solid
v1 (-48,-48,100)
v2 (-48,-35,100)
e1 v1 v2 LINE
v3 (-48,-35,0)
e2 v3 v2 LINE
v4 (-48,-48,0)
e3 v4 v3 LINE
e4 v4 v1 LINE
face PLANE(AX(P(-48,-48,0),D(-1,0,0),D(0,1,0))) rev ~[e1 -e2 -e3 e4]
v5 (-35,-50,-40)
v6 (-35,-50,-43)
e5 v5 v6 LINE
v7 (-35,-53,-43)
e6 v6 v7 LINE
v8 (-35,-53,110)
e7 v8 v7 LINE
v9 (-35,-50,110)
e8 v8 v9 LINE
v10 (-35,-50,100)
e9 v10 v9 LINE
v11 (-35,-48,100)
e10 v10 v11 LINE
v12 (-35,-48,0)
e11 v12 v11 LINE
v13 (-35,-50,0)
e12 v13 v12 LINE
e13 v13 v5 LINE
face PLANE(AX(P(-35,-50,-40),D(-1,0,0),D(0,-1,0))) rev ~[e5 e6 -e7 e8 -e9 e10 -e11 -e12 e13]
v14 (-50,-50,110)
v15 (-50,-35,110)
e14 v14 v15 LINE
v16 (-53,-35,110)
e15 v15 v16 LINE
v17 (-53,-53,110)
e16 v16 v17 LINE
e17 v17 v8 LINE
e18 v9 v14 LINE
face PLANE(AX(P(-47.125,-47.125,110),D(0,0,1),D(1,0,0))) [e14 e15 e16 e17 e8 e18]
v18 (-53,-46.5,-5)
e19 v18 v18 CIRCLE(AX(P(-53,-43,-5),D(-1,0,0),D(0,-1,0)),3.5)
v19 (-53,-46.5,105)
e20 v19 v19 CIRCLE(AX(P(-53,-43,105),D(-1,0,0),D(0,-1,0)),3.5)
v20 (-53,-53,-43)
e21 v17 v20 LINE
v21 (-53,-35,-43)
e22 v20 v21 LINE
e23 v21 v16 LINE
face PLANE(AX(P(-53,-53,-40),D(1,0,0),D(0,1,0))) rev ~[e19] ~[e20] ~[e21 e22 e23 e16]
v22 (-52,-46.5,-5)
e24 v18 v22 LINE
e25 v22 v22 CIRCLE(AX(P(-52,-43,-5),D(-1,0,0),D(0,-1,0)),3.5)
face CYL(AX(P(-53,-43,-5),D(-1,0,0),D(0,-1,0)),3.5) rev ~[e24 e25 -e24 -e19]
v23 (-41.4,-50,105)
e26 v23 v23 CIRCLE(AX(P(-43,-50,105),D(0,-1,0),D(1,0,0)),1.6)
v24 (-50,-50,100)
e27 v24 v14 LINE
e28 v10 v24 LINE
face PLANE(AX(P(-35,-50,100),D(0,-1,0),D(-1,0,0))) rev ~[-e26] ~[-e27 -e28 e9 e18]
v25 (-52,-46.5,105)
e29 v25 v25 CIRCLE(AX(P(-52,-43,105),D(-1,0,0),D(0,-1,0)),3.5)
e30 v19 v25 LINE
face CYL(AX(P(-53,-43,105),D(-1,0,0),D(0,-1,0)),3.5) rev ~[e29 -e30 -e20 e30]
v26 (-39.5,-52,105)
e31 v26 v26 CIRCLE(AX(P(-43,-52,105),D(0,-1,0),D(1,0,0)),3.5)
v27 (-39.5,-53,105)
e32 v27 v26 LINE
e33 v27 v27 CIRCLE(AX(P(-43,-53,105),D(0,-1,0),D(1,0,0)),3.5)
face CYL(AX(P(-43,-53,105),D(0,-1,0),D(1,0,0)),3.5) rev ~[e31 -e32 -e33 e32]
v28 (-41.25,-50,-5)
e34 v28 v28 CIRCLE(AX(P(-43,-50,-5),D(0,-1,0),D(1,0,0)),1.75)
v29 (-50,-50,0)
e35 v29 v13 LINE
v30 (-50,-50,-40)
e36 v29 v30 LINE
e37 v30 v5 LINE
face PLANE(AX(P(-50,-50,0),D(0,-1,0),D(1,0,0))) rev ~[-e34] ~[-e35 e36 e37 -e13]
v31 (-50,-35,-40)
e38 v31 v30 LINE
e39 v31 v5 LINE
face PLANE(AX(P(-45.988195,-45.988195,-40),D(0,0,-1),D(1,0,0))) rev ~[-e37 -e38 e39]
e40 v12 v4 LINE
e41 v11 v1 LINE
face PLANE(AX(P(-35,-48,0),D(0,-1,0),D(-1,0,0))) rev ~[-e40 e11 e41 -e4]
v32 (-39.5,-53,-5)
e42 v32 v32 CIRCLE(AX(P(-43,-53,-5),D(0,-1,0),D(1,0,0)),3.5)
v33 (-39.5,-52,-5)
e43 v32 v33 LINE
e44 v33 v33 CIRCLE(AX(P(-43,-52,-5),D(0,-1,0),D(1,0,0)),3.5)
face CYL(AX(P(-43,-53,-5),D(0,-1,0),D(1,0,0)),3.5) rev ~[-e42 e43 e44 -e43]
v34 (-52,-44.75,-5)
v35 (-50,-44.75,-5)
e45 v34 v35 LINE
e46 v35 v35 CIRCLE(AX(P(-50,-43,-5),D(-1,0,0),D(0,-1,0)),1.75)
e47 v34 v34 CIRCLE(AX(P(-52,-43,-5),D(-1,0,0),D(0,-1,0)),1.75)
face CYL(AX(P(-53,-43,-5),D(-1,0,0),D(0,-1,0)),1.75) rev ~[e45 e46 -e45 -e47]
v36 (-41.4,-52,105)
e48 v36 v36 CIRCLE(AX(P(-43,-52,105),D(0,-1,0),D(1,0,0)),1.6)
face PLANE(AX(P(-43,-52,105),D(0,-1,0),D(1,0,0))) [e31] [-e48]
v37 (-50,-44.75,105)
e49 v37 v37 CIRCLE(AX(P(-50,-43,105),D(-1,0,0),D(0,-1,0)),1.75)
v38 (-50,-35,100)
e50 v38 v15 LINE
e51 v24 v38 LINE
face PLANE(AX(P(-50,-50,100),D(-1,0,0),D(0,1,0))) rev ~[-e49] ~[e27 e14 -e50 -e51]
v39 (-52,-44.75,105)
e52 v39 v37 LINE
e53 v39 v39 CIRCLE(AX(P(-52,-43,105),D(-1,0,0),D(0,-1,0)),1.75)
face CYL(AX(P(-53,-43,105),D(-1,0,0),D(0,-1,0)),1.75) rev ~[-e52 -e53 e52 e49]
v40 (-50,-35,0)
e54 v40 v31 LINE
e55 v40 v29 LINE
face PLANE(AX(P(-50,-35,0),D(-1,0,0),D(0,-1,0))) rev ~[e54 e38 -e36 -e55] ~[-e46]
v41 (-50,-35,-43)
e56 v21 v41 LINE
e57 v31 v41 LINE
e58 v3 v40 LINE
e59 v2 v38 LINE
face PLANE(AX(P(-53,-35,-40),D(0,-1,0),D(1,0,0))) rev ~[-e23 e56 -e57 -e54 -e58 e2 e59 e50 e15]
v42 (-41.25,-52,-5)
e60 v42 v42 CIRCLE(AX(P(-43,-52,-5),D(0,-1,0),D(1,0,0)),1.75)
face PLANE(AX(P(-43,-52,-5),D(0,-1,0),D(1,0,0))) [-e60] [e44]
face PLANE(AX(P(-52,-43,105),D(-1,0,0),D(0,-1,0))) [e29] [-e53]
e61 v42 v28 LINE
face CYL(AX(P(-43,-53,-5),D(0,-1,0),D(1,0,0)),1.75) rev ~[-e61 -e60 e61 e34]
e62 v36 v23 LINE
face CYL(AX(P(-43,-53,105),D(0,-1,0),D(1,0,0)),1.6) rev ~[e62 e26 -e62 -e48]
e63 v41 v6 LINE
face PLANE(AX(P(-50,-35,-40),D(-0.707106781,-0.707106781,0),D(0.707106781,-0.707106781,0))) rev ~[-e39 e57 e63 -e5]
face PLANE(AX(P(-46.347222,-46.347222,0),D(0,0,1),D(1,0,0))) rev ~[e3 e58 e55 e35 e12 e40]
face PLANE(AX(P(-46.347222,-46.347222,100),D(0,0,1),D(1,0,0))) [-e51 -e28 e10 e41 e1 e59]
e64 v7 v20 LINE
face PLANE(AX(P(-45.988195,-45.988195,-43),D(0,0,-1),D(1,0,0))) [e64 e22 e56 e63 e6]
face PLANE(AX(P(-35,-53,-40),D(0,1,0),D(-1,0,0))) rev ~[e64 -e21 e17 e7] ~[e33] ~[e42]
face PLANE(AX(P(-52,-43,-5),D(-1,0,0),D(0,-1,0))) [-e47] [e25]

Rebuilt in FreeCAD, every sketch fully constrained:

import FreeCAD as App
import Part
import Sketcher

V = App.Vector
Q = App.Units.Quantity


def add_polygon(sketch, points):
    """Adds a closed chain of lines whose ends are joined by coincident constraints."""
    first, n = sketch.GeometryCount, len(points)
    for a, b in zip(points, points[1:] + points[:1]):
        sketch.addGeometry(Part.LineSegment(App.Vector(*a, 0), App.Vector(*b, 0)), False)
    for i in range(n):
        sketch.addConstraint(Sketcher.Constraint("Coincident", first + i, 2, first + (i + 1) % n, 1))

doc = App.newDocument("Part")
body = doc.addObject("PartDesign::Body", "Body")

# Sketch on XY plane
sketch1 = body.newObject("Sketcher::SketchObject", "Sketch")
sketch1.AttachmentSupport = (doc.getObject("XY_Plane"), [""])
sketch1.MapMode = "FlatFace"
add_polygon(sketch1, [(-53, -35), (-53, -53), (-35, -53), (-35, -48), (-48, -48), (-48, -35)])  # lines 0-5
sketch1.addConstraint([
    Sketcher.Constraint("Vertical", 0),
    Sketcher.Constraint("Horizontal", 1),
    Sketcher.Constraint("Vertical", 2),
    Sketcher.Constraint("Horizontal", 3),
    Sketcher.Constraint("Vertical", 4),
    Sketcher.Constraint("Horizontal", 5),
    Sketcher.Constraint("Equal", 1, 0),
    Sketcher.Constraint("Equal", 5, 2),
    Sketcher.Constraint("DistanceX", 1, 1, 1, 2, Q("18 mm")),
    Sketcher.Constraint("DistanceX", 3, 2, 3, 1, Q("13 mm")),
    Sketcher.Constraint("DistanceX", 0, 2, -1, 1, Q("53 mm")),
    Sketcher.Constraint("DistanceY", 0, 2, -1, 1, Q("53 mm")),
])
pad1 = body.newObject("PartDesign::Pad", "Pad")
pad1.Profile = sketch1
pad1.Length = 100

# Sketch on XY plane
sketch2 = body.newObject("Sketcher::SketchObject", "Sketch001")
sketch2.AttachmentSupport = (doc.getObject("XY_Plane"), [""])
sketch2.MapMode = "FlatFace"
sketch2.AttachmentOffset = App.Placement(V(0, 0, 100), App.Rotation())
add_polygon(sketch2, [(-53, -35), (-53, -53), (-35, -53), (-35, -50), (-50, -50), (-50, -35)])  # lines 0-5
sketch2.addConstraint([
    Sketcher.Constraint("Vertical", 0),
    Sketcher.Constraint("Horizontal", 1),
    Sketcher.Constraint("Vertical", 2),
    Sketcher.Constraint("Horizontal", 3),
    Sketcher.Constraint("Vertical", 4),
    Sketcher.Constraint("Horizontal", 5),
    Sketcher.Constraint("Equal", 1, 0),
    Sketcher.Constraint("Equal", 5, 2),
    Sketcher.Constraint("DistanceX", 1, 1, 1, 2, Q("18 mm")),
    Sketcher.Constraint("DistanceX", 3, 2, 3, 1, Q("15 mm")),
    Sketcher.Constraint("DistanceX", 0, 2, -1, 1, Q("53 mm")),
    Sketcher.Constraint("DistanceY", 0, 2, -1, 1, Q("53 mm")),
])
pad2 = body.newObject("PartDesign::Pad", "Pad001")
pad2.Profile = sketch2
pad2.Length = 10

# Sketch on XZ plane
sketch3 = body.newObject("Sketcher::SketchObject", "Sketch002")
sketch3.AttachmentSupport = (doc.getObject("XZ_Plane"), [""])
sketch3.MapMode = "FlatFace"
sketch3.AttachmentOffset = App.Placement(V(0, 0, 53), App.Rotation())
sketch3.addGeometry(Part.Circle(V(-43, 105, 0), V(0, 0, 1), 1.6), False)
sketch3.addConstraint([
    Sketcher.Constraint("Diameter", 0, Q("3.2 mm")),
    Sketcher.Constraint("DistanceX", 0, 3, -1, 1, Q("43 mm")),
    Sketcher.Constraint("DistanceY", -1, 1, 0, 3, Q("105 mm")),
])
pocket1 = body.newObject("PartDesign::Pocket", "Pocket")
pocket1.Profile = sketch3
pocket1.Length = 5

# Sketch on XZ plane
sketch4 = body.newObject("Sketcher::SketchObject", "Sketch003")
sketch4.AttachmentSupport = (doc.getObject("XZ_Plane"), [""])
sketch4.MapMode = "FlatFace"
sketch4.AttachmentOffset = App.Placement(V(0, 0, 53), App.Rotation())
sketch4.addGeometry(Part.Circle(V(-43, 105, 0), V(0, 0, 1), 3.5), False)
sketch4.addConstraint([
    Sketcher.Constraint("Diameter", 0, Q("7 mm")),
    Sketcher.Constraint("DistanceX", 0, 3, -1, 1, Q("43 mm")),
    Sketcher.Constraint("DistanceY", -1, 1, 0, 3, Q("105 mm")),
])
pocket2 = body.newObject("PartDesign::Pocket", "Pocket001")
pocket2.Profile = sketch4
pocket2.Length = 1

# Sketch on YZ plane
sketch5 = body.newObject("Sketcher::SketchObject", "Sketch004")
sketch5.AttachmentSupport = (doc.getObject("YZ_Plane"), [""])
sketch5.MapMode = "FlatFace"
sketch5.AttachmentOffset = App.Placement(V(0, 0, -53), App.Rotation())
sketch5.addGeometry(Part.Circle(V(-43, 105, 0), V(0, 0, 1), 1.8), False)
sketch5.addConstraint([
    Sketcher.Constraint("Diameter", 0, Q("3.5 mm")),
    Sketcher.Constraint("DistanceX", 0, 3, -1, 1, Q("43 mm")),
    Sketcher.Constraint("DistanceY", -1, 1, 0, 3, Q("105 mm")),
])
pocket3 = body.newObject("PartDesign::Pocket", "Pocket002")
pocket3.Profile = sketch5
pocket3.Length = 5
pocket3.Reversed = True

# Sketch on YZ plane
sketch6 = body.newObject("Sketcher::SketchObject", "Sketch005")
sketch6.AttachmentSupport = (doc.getObject("YZ_Plane"), [""])
sketch6.MapMode = "FlatFace"
sketch6.AttachmentOffset = App.Placement(V(0, 0, -53), App.Rotation())
sketch6.addGeometry(Part.Circle(V(-43, 105, 0), V(0, 0, 1), 3.5), False)
sketch6.addConstraint([
    Sketcher.Constraint("Diameter", 0, Q("7 mm")),
    Sketcher.Constraint("DistanceX", 0, 3, -1, 1, Q("43 mm")),
    Sketcher.Constraint("DistanceY", -1, 1, 0, 3, Q("105 mm")),
])
pocket4 = body.newObject("PartDesign::Pocket", "Pocket003")
pocket4.Profile = sketch6
pocket4.Length = 1
pocket4.Reversed = True

# Sketch on XY plane
sketch7 = body.newObject("Sketcher::SketchObject", "Sketch006")
sketch7.AttachmentSupport = (doc.getObject("XY_Plane"), [""])
sketch7.MapMode = "FlatFace"
add_polygon(sketch7, [(-35, -53), (-53, -53), (-53, -35), (-50, -35), (-50, -50), (-35, -50)])  # lines 0-5
sketch7.addConstraint([
    Sketcher.Constraint("Horizontal", 0),
    Sketcher.Constraint("Vertical", 1),
    Sketcher.Constraint("Horizontal", 2),
    Sketcher.Constraint("Vertical", 3),
    Sketcher.Constraint("Horizontal", 4),
    Sketcher.Constraint("Vertical", 5),
    Sketcher.Constraint("Equal", 0, 1),
    Sketcher.Constraint("Equal", 4, 3),
    Sketcher.Constraint("DistanceX", 0, 2, 0, 1, Q("18 mm")),
    Sketcher.Constraint("DistanceX", 2, 1, 2, 2, Q("3 mm")),
    Sketcher.Constraint("DistanceX", 0, 2, -1, 1, Q("53 mm")),
    Sketcher.Constraint("DistanceY", 0, 2, -1, 1, Q("53 mm")),
])
pad3 = body.newObject("PartDesign::Pad", "Pad002")
pad3.Profile = sketch7
pad3.Length = 40
pad3.Reversed = True

# Sketch on XY plane
sketch8 = body.newObject("Sketcher::SketchObject", "Sketch007")
sketch8.AttachmentSupport = (doc.getObject("XY_Plane"), [""])
sketch8.MapMode = "FlatFace"
sketch8.AttachmentOffset = App.Placement(V(0, 0, -40), App.Rotation())
add_polygon(sketch8, [(-35, -50), (-35, -53), (-53, -53), (-53, -35), (-50, -35)])  # lines 0-4
sketch8.addConstraint([
    Sketcher.Constraint("Vertical", 0),
    Sketcher.Constraint("Horizontal", 1),
    Sketcher.Constraint("Vertical", 2),
    Sketcher.Constraint("Horizontal", 3),
    Sketcher.Constraint("Equal", 3, 0),
    Sketcher.Constraint("Equal", 1, 2),
    Sketcher.Constraint("DistanceX", 1, 2, 1, 1, Q("18 mm")),
    Sketcher.Constraint("DistanceX", 3, 1, 3, 2, Q("3 mm")),
    Sketcher.Constraint("DistanceX", 0, 2, -1, 1, Q("35 mm")),
    Sketcher.Constraint("DistanceY", 0, 2, -1, 1, Q("53 mm")),
])
pad4 = body.newObject("PartDesign::Pad", "Pad003")
pad4.Profile = sketch8
pad4.Length = 3
pad4.Reversed = True

# Sketch on YZ plane
sketch9 = body.newObject("Sketcher::SketchObject", "Sketch008")
sketch9.AttachmentSupport = (doc.getObject("YZ_Plane"), [""])
sketch9.MapMode = "FlatFace"
sketch9.AttachmentOffset = App.Placement(V(0, 0, -53), App.Rotation())
sketch9.addGeometry(Part.Circle(V(-43, -5, 0), V(0, 0, 1), 1.8), False)
sketch9.addConstraint([
    Sketcher.Constraint("Diameter", 0, Q("3.5 mm")),
    Sketcher.Constraint("DistanceX", 0, 3, -1, 1, Q("43 mm")),
    Sketcher.Constraint("DistanceY", 0, 3, -1, 1, Q("5 mm")),
])
pocket5 = body.newObject("PartDesign::Pocket", "Pocket004")
pocket5.Profile = sketch9
pocket5.Length = 5
pocket5.Reversed = True

# Sketch on YZ plane
sketch10 = body.newObject("Sketcher::SketchObject", "Sketch009")
sketch10.AttachmentSupport = (doc.getObject("YZ_Plane"), [""])
sketch10.MapMode = "FlatFace"
sketch10.AttachmentOffset = App.Placement(V(0, 0, -53), App.Rotation())
sketch10.addGeometry(Part.Circle(V(-43, -5, 0), V(0, 0, 1), 3.5), False)
sketch10.addConstraint([
    Sketcher.Constraint("Diameter", 0, Q("7 mm")),
    Sketcher.Constraint("DistanceX", 0, 3, -1, 1, Q("43 mm")),
    Sketcher.Constraint("DistanceY", 0, 3, -1, 1, Q("5 mm")),
])
pocket6 = body.newObject("PartDesign::Pocket", "Pocket005")
pocket6.Profile = sketch10
pocket6.Length = 1
pocket6.Reversed = True

# Sketch on XZ plane
sketch11 = body.newObject("Sketcher::SketchObject", "Sketch010")
sketch11.AttachmentSupport = (doc.getObject("XZ_Plane"), [""])
sketch11.MapMode = "FlatFace"
sketch11.AttachmentOffset = App.Placement(V(0, 0, 53), App.Rotation())
sketch11.addGeometry(Part.Circle(V(-43, -5, 0), V(0, 0, 1), 1.8), False)
sketch11.addConstraint([
    Sketcher.Constraint("Diameter", 0, Q("3.5 mm")),
    Sketcher.Constraint("DistanceX", 0, 3, -1, 1, Q("43 mm")),
    Sketcher.Constraint("DistanceY", 0, 3, -1, 1, Q("5 mm")),
])
pocket7 = body.newObject("PartDesign::Pocket", "Pocket006")
pocket7.Profile = sketch11
pocket7.Length = 5

# Sketch on XZ plane
sketch12 = body.newObject("Sketcher::SketchObject", "Sketch011")
sketch12.AttachmentSupport = (doc.getObject("XZ_Plane"), [""])
sketch12.MapMode = "FlatFace"
sketch12.AttachmentOffset = App.Placement(V(0, 0, 53), App.Rotation())
sketch12.addGeometry(Part.Circle(V(-43, -5, 0), V(0, 0, 1), 3.5), False)
sketch12.addConstraint([
    Sketcher.Constraint("Diameter", 0, Q("7 mm")),
    Sketcher.Constraint("DistanceX", 0, 3, -1, 1, Q("43 mm")),
    Sketcher.Constraint("DistanceY", 0, 3, -1, 1, Q("5 mm")),
])
pocket8 = body.newObject("PartDesign::Pocket", "Pocket007")
pocket8.Profile = sketch12
pocket8.Length = 1

doc.recompute()
